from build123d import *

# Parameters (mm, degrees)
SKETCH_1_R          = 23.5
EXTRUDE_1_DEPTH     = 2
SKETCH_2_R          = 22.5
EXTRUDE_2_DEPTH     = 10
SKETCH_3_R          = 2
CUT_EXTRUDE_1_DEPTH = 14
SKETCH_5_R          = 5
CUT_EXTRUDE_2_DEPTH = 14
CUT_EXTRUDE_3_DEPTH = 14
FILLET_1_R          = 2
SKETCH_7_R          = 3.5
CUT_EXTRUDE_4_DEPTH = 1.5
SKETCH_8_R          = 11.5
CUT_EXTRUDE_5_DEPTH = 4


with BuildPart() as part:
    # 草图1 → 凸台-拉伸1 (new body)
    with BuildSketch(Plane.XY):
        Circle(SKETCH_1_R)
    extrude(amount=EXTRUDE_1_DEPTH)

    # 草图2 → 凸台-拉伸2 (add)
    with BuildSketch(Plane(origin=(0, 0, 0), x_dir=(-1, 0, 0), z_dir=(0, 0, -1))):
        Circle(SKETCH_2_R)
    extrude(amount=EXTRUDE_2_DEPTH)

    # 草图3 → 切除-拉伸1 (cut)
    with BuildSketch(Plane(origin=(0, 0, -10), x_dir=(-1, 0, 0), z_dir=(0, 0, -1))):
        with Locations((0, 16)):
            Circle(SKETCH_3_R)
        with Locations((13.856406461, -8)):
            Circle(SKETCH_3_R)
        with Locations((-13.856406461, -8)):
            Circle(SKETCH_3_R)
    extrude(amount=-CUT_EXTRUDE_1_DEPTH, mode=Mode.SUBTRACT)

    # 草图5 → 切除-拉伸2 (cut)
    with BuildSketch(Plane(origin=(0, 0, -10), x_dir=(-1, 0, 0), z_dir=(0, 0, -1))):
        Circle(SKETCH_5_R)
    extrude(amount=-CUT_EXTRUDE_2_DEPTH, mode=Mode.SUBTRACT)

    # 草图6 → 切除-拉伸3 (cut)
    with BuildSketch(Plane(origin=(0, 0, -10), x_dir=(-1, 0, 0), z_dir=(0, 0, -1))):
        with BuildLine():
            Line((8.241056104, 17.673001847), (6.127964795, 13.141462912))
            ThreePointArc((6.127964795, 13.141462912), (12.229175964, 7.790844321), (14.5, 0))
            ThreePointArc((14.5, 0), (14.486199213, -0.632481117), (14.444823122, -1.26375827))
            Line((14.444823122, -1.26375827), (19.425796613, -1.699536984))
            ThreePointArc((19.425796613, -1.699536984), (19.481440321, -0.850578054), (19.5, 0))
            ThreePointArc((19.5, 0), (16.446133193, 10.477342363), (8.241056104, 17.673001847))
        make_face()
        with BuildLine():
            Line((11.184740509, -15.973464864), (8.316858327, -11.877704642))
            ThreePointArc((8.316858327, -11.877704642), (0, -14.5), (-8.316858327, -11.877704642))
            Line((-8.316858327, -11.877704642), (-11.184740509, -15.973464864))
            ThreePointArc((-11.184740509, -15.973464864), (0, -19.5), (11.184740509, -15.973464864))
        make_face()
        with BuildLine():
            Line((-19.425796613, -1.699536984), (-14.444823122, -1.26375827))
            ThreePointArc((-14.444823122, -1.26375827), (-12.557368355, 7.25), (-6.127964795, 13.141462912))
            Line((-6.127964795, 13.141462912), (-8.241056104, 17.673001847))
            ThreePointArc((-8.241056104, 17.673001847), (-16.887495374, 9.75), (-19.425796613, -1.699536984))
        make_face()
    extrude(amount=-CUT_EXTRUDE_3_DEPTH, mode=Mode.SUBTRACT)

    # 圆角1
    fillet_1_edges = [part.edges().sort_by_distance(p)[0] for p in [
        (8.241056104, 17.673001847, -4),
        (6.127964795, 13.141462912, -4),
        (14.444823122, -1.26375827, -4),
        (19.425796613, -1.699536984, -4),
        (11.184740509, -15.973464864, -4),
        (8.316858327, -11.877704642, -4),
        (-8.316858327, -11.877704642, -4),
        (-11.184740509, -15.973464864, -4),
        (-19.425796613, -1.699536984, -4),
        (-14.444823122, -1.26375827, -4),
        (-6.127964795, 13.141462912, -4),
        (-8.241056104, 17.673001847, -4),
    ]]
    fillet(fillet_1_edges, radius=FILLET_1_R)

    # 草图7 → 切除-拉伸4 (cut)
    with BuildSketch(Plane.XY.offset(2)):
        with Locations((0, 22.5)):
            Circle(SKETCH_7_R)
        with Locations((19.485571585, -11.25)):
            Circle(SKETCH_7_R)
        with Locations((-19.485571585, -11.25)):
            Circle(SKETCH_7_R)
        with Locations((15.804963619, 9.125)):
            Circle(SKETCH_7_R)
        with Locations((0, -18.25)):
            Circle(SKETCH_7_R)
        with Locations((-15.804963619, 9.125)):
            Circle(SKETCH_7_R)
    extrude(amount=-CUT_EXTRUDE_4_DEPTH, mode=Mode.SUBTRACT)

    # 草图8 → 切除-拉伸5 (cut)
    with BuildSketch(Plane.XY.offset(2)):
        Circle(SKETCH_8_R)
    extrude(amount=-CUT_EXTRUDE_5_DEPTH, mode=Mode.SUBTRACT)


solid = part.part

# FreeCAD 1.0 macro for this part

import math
import FreeCAD as App
import Part
import Sketcher
from FreeCAD import Vector
Q = App.Units.Quantity


def edges_at(feature, points):
    """Names of the edges that pass closest to the given points."""
    edges = feature.Shape.Edges
    near = lambda p: min(range(len(edges)), key=lambda i: edges[i].distToShape(Part.Vertex(*p))[0])
    return sorted({f"Edge{near(p) + 1}" for p in points})

doc = App.newDocument("Part")
params = doc.addObject("Spreadsheet::Sheet", "Params")
for row, (alias, value) in enumerate([
    ("sketch1_diameter", "47 mm"),
    ("pad1_length", "2 mm"),
    ("sketch2_diameter", "45 mm"),
    ("pad2_length", "10 mm"),
    ("sketch3_diameter", "4 mm"),
    ("pocket1_length", "14 mm"),
    ("sketch4_diameter", "10 mm"),
    ("pocket2_length", "14 mm"),
    ("sketch5_radius", "14.5 mm"),
    ("sketch5_radius2", "19.5 mm"),
    ("pocket3_length", "14 mm"),
    ("fillet_radius", "2 mm"),
    ("sketch6_diameter", "7 mm"),
    ("pocket4_length", "1.5 mm"),
    ("sketch7_diameter", "23 mm"),
    ("pocket5_length", "4 mm"),
], start=1):
    params.set(f"A{row}", alias)
    params.set(f"B{row}", "=" + value)
    params.setAlias(f"B{row}", alias)

body = doc.addObject("PartDesign::Body", "Body")

sketch1 = body.newObject("Sketcher::SketchObject", "Sketch")
sketch1.AttachmentSupport = (doc.getObject("XY_Plane"), [""])
sketch1.MapMode = "FlatFace"
sketch1.addGeometry(Part.Circle(Vector(0, 0, 0), Vector(0, 0, 1), 24), False)
sketch1.addConstraint([
    Sketcher.Constraint("Coincident", 0, 3, -1, 1),
    Sketcher.Constraint("Diameter", 0, Q("47 mm")),
])
sketch1.setExpression("Constraints[1]", "Params.sketch1_diameter")
pad1 = body.newObject("PartDesign::Pad", "Pad")
pad1.Profile = sketch1
pad1.setExpression("Length", "Params.pad1_length")

sketch2 = body.newObject("Sketcher::SketchObject", "Sketch001")
sketch2.AttachmentSupport = (doc.getObject("XY_Plane"), [""])
sketch2.MapMode = "FlatFace"
sketch2.addGeometry(Part.Circle(Vector(0, 0, 0), Vector(0, 0, 1), 22), False)
sketch2.addConstraint([
    Sketcher.Constraint("Coincident", 0, 3, -1, 1),
    Sketcher.Constraint("Diameter", 0, Q("45 mm")),
])
sketch2.setExpression("Constraints[1]", "Params.sketch2_diameter")
pad2 = body.newObject("PartDesign::Pad", "Pad001")
pad2.Profile = sketch2
pad2.setExpression("Length", "Params.pad2_length")
pad2.Reversed = True

sketch3 = body.newObject("Sketcher::SketchObject", "Sketch002")
sketch3.AttachmentSupport = (doc.getObject("XY_Plane"), [""])
sketch3.MapMode = "FlatFace"
sketch3.AttachmentOffset = App.Placement(Vector(0, 0, -10), App.Rotation())
sketch3.addGeometry([
    Part.Circle(Vector(0, 16, 0), Vector(0, 0, 1), 2),
    Part.Circle(Vector(-13.9, -8, 0), Vector(0, 0, 1), 2),
    Part.Circle(Vector(13.9, -8, 0), Vector(0, 0, 1), 2),
], False)
sketch3.addConstraint([
    Sketcher.Constraint("Equal", 0, 1),
    Sketcher.Constraint("Equal", 1, 2),
    Sketcher.Constraint("Symmetric", 1, 3, 2, 3, -2),
    Sketcher.Constraint("PointOnObject", 0, 3, -2),
    Sketcher.Constraint("Diameter", 0, Q("4 mm")),
    Sketcher.Constraint("DistanceY", -1, 1, 0, 3, Q("16 mm")),
    Sketcher.Constraint("DistanceY", 1, 3, -1, 1, Q("8 mm")),
    Sketcher.Constraint("DistanceX", 1, 3, -1, 1, Q("13.856406 mm")),
])
sketch3.setExpression("Constraints[4]", "Params.sketch3_diameter")
pocket1 = body.newObject("PartDesign::Pocket", "Pocket")
pocket1.Profile = sketch3
pocket1.setExpression("Length", "Params.pocket1_length")
pocket1.Reversed = True

sketch4 = body.newObject("Sketcher::SketchObject", "Sketch003")
sketch4.AttachmentSupport = (doc.getObject("XY_Plane"), [""])
sketch4.MapMode = "FlatFace"
sketch4.AttachmentOffset = App.Placement(Vector(0, 0, -10), App.Rotation())
sketch4.addGeometry(Part.Circle(Vector(0, 0, 0), Vector(0, 0, 1), 5), False)
sketch4.addConstraint([
    Sketcher.Constraint("Coincident", 0, 3, -1, 1),
    Sketcher.Constraint("Diameter", 0, Q("10 mm")),
])
sketch4.setExpression("Constraints[1]", "Params.sketch4_diameter")
pocket2 = body.newObject("PartDesign::Pocket", "Pocket001")
pocket2.Profile = sketch4
pocket2.setExpression("Length", "Params.pocket2_length")
pocket2.Reversed = True

sketch5 = body.newObject("Sketcher::SketchObject", "Sketch004")
sketch5.AttachmentSupport = (doc.getObject("XY_Plane"), [""])
sketch5.MapMode = "FlatFace"
sketch5.AttachmentOffset = App.Placement(Vector(0, 0, -10), App.Rotation())
sketch5.addGeometry([
    Part.LineSegment(Vector(-8.2, 17.7, 0), Vector(-6.1, 13.1, 0)),
    Part.ArcOfCircle(Part.Circle(Vector(0, 0, 0), Vector(0, 0, 1), 14.5), math.radians(115), math.radians(180)),
    Part.ArcOfCircle(Part.Circle(Vector(0, 0, 0), Vector(0, 0, 1), 14.5), math.radians(180), math.radians(185)),
    Part.LineSegment(Vector(-14.4, -1.3, 0), Vector(-19.4, -1.7, 0)),
    Part.ArcOfCircle(Part.Circle(Vector(0, 0, 0), Vector(0, 0, 1), 19.5), math.radians(180), math.radians(185)),
    Part.ArcOfCircle(Part.Circle(Vector(0, 0, 0), Vector(0, 0, 1), 19.5), math.radians(115), math.radians(180)),
    Part.LineSegment(Vector(-11.2, -16, 0), Vector(-8.3, -11.9, 0)),
    Part.ArcOfCircle(Part.Circle(Vector(0, 0, 0), Vector(0, 0, 1), 14.5), math.radians(-125), math.radians(-55)),
    Part.LineSegment(Vector(8.3, -11.9, 0), Vector(11.2, -16, 0)),
    Part.ArcOfCircle(Part.Circle(Vector(0, 0, 0), Vector(0, 0, 1), 19.5), math.radians(-125), math.radians(-55)),
    Part.LineSegment(Vector(19.4, -1.7, 0), Vector(14.4, -1.3, 0)),
    Part.ArcOfCircle(Part.Circle(Vector(0, 0, 0), Vector(0, 0, 1), 14.5), math.radians(-5), math.radians(65)),
    Part.LineSegment(Vector(6.1, 13.1, 0), Vector(8.2, 17.7, 0)),
    Part.ArcOfCircle(Part.Circle(Vector(0, 0, 0), Vector(0, 0, 1), 19.5), math.radians(-5), math.radians(65)),
], False)
sketch5.addConstraint([
    Sketcher.Constraint("Coincident", 0, 2, 1, 1),
    Sketcher.Constraint("Tangent", 1, 2, 2, 1),
    Sketcher.Constraint("Coincident", 2, 2, 3, 1),
    Sketcher.Constraint("Coincident", 3, 2, 4, 2),
    Sketcher.Constraint("Tangent", 4, 1, 5, 2),
    Sketcher.Constraint("Coincident", 5, 1, 0, 1),
    Sketcher.Constraint("Coincident", 6, 2, 7, 1),
    Sketcher.Constraint("Coincident", 7, 2, 8, 1),
    Sketcher.Constraint("Coincident", 8, 2, 9, 2),
    Sketcher.Constraint("Coincident", 9, 1, 6, 1),
    Sketcher.Constraint("Coincident", 10, 2, 11, 1),
    Sketcher.Constraint("Coincident", 11, 2, 12, 1),
    Sketcher.Constraint("Coincident", 12, 2, 13, 2),
    Sketcher.Constraint("Coincident", 13, 1, 10, 1),
    Sketcher.Constraint("Coincident", 1, 3, -1, 1),
    Sketcher.Constraint("Coincident", 4, 3, -1, 1),
    Sketcher.Constraint("Coincident", 7, 3, -1, 1),
    Sketcher.Constraint("Coincident", 9, 3, -1, 1),
    Sketcher.Constraint("Coincident", 11, 3, -1, 1),
    Sketcher.Constraint("Coincident", 13, 3, -1, 1),
    Sketcher.Constraint("Equal", 1, 2),
    Sketcher.Constraint("Equal", 4, 5),
    Sketcher.Constraint("Equal", 2, 7),
    Sketcher.Constraint("Equal", 5, 9),
    Sketcher.Constraint("Equal", 7, 11),
    Sketcher.Constraint("Equal", 9, 13),
    Sketcher.Constraint("PointOnObject", 1, 2, -1),
    Sketcher.Constraint("PointOnObject", 4, 1, -1),
    Sketcher.Constraint("Horizontal", 6, 2, 7, 2),
    Sketcher.Constraint("Horizontal", 8, 2, 9, 1),
    Sketcher.Constraint("Horizontal", 2, 2, 10, 2),
    Sketcher.Constraint("Horizontal", 0, 2, 11, 2),
    Sketcher.Constraint("Horizontal", 5, 1, 12, 2),
    Sketcher.Constraint("Horizontal", 3, 2, 13, 1),
    Sketcher.Constraint("Radius", 1, Q("14.5 mm")),
    Sketcher.Constraint("Radius", 4, Q("19.5 mm")),
    Sketcher.Constraint("Angle", 0, Q("-65 deg")),
    Sketcher.Constraint("Angle", 3, Q("-175 deg")),
    Sketcher.Constraint("Angle", 6, Q("55 deg")),
    Sketcher.Constraint("DistanceY", -1, 1, 5, 1, Q("17.673002 mm")),
    Sketcher.Constraint("DistanceY", 2, 2, -1, 1, Q("1.263758 mm")),
    Sketcher.Constraint("DistanceX", 6, 2, -1, 1, Q("8.316858 mm")),
])
sketch5.setExpression("Constraints[34]", "Params.sketch5_radius")
sketch5.setExpression("Constraints[35]", "Params.sketch5_radius2")
pocket3 = body.newObject("PartDesign::Pocket", "Pocket002")
pocket3.Profile = sketch5
pocket3.setExpression("Length", "Params.pocket3_length")
pocket3.Reversed = True
doc.recompute()

fillet = body.newObject("PartDesign::Fillet", "Fillet")
fillet.Base = (pocket3, edges_at(pocket3, [
    (8.241, 17.673, -4),
    (6.128, 13.141, -4),
    (14.445, -1.264, -4),
    (19.426, -1.7, -4),
    (11.185, -15.973, -4),
    (8.317, -11.878, -4),
    (-8.317, -11.878, -4),
    (-11.185, -15.973, -4),
    (-19.426, -1.7, -4),
    (-14.445, -1.264, -4),
    (-6.128, 13.141, -4),
    (-8.241, 17.673, -4),
]))
fillet.setExpression("Radius", "Params.fillet_radius")

sketch6 = body.newObject("Sketcher::SketchObject", "Sketch005")
sketch6.AttachmentSupport = (doc.getObject("XY_Plane"), [""])
sketch6.MapMode = "FlatFace"
sketch6.AttachmentOffset = App.Placement(Vector(0, 0, 2), App.Rotation())
sketch6.addGeometry([
    Part.Circle(Vector(0, 22.5, 0), Vector(0, 0, 1), 3.5),
    Part.Circle(Vector(19.5, -11.2, 0), Vector(0, 0, 1), 3.5),
    Part.Circle(Vector(-19.5, -11.2, 0), Vector(0, 0, 1), 3.5),
    Part.Circle(Vector(15.8, 9.1, 0), Vector(0, 0, 1), 3.5),
    Part.Circle(Vector(0, -18.2, 0), Vector(0, 0, 1), 3.5),
    Part.Circle(Vector(-15.8, 9.1, 0), Vector(0, 0, 1), 3.5),
], False)
sketch6.addConstraint([
    Sketcher.Constraint("Equal", 0, 1),
    Sketcher.Constraint("Equal", 1, 2),
    Sketcher.Constraint("Equal", 2, 3),
    Sketcher.Constraint("Equal", 3, 4),
    Sketcher.Constraint("Equal", 4, 5),
    Sketcher.Constraint("Symmetric", 1, 3, 2, 3, -2),
    Sketcher.Constraint("Symmetric", 3, 3, 5, 3, -2),
    Sketcher.Constraint("PointOnObject", 0, 3, -2),
    Sketcher.Constraint("PointOnObject", 4, 3, -2),
    Sketcher.Constraint("Diameter", 0, Q("7 mm")),
    Sketcher.Constraint("DistanceY", 4, 3, 1, 3, Q("7 mm")),
    Sketcher.Constraint("DistanceY", -1, 1, 0, 3, Q("22.5 mm")),
    Sketcher.Constraint("DistanceY", 1, 3, -1, 1, Q("11.25 mm")),
    Sketcher.Constraint("DistanceY", -1, 1, 3, 3, Q("9.125 mm")),
    Sketcher.Constraint("DistanceX", -1, 1, 1, 3, Q("19.485572 mm")),
    Sketcher.Constraint("DistanceX", -1, 1, 3, 3, Q("15.804964 mm")),
])
sketch6.setExpression("Constraints[9]", "Params.sketch6_diameter")
pocket4 = body.newObject("PartDesign::Pocket", "Pocket003")
pocket4.Profile = sketch6
pocket4.setExpression("Length", "Params.pocket4_length")

sketch7 = body.newObject("Sketcher::SketchObject", "Sketch006")
sketch7.AttachmentSupport = (doc.getObject("XY_Plane"), [""])
sketch7.MapMode = "FlatFace"
sketch7.AttachmentOffset = App.Placement(Vector(0, 0, 2), App.Rotation())
sketch7.addGeometry(Part.Circle(Vector(0, 0, 0), Vector(0, 0, 1), 12), False)
sketch7.addConstraint([
    Sketcher.Constraint("Coincident", 0, 3, -1, 1),
    Sketcher.Constraint("Diameter", 0, Q("23 mm")),
])
sketch7.setExpression("Constraints[1]", "Params.sketch7_diameter")
pocket5 = body.newObject("PartDesign::Pocket", "Pocket004")
pocket5.Profile = sketch7
pocket5.setExpression("Length", "Params.pocket5_length")

doc.recompute()
